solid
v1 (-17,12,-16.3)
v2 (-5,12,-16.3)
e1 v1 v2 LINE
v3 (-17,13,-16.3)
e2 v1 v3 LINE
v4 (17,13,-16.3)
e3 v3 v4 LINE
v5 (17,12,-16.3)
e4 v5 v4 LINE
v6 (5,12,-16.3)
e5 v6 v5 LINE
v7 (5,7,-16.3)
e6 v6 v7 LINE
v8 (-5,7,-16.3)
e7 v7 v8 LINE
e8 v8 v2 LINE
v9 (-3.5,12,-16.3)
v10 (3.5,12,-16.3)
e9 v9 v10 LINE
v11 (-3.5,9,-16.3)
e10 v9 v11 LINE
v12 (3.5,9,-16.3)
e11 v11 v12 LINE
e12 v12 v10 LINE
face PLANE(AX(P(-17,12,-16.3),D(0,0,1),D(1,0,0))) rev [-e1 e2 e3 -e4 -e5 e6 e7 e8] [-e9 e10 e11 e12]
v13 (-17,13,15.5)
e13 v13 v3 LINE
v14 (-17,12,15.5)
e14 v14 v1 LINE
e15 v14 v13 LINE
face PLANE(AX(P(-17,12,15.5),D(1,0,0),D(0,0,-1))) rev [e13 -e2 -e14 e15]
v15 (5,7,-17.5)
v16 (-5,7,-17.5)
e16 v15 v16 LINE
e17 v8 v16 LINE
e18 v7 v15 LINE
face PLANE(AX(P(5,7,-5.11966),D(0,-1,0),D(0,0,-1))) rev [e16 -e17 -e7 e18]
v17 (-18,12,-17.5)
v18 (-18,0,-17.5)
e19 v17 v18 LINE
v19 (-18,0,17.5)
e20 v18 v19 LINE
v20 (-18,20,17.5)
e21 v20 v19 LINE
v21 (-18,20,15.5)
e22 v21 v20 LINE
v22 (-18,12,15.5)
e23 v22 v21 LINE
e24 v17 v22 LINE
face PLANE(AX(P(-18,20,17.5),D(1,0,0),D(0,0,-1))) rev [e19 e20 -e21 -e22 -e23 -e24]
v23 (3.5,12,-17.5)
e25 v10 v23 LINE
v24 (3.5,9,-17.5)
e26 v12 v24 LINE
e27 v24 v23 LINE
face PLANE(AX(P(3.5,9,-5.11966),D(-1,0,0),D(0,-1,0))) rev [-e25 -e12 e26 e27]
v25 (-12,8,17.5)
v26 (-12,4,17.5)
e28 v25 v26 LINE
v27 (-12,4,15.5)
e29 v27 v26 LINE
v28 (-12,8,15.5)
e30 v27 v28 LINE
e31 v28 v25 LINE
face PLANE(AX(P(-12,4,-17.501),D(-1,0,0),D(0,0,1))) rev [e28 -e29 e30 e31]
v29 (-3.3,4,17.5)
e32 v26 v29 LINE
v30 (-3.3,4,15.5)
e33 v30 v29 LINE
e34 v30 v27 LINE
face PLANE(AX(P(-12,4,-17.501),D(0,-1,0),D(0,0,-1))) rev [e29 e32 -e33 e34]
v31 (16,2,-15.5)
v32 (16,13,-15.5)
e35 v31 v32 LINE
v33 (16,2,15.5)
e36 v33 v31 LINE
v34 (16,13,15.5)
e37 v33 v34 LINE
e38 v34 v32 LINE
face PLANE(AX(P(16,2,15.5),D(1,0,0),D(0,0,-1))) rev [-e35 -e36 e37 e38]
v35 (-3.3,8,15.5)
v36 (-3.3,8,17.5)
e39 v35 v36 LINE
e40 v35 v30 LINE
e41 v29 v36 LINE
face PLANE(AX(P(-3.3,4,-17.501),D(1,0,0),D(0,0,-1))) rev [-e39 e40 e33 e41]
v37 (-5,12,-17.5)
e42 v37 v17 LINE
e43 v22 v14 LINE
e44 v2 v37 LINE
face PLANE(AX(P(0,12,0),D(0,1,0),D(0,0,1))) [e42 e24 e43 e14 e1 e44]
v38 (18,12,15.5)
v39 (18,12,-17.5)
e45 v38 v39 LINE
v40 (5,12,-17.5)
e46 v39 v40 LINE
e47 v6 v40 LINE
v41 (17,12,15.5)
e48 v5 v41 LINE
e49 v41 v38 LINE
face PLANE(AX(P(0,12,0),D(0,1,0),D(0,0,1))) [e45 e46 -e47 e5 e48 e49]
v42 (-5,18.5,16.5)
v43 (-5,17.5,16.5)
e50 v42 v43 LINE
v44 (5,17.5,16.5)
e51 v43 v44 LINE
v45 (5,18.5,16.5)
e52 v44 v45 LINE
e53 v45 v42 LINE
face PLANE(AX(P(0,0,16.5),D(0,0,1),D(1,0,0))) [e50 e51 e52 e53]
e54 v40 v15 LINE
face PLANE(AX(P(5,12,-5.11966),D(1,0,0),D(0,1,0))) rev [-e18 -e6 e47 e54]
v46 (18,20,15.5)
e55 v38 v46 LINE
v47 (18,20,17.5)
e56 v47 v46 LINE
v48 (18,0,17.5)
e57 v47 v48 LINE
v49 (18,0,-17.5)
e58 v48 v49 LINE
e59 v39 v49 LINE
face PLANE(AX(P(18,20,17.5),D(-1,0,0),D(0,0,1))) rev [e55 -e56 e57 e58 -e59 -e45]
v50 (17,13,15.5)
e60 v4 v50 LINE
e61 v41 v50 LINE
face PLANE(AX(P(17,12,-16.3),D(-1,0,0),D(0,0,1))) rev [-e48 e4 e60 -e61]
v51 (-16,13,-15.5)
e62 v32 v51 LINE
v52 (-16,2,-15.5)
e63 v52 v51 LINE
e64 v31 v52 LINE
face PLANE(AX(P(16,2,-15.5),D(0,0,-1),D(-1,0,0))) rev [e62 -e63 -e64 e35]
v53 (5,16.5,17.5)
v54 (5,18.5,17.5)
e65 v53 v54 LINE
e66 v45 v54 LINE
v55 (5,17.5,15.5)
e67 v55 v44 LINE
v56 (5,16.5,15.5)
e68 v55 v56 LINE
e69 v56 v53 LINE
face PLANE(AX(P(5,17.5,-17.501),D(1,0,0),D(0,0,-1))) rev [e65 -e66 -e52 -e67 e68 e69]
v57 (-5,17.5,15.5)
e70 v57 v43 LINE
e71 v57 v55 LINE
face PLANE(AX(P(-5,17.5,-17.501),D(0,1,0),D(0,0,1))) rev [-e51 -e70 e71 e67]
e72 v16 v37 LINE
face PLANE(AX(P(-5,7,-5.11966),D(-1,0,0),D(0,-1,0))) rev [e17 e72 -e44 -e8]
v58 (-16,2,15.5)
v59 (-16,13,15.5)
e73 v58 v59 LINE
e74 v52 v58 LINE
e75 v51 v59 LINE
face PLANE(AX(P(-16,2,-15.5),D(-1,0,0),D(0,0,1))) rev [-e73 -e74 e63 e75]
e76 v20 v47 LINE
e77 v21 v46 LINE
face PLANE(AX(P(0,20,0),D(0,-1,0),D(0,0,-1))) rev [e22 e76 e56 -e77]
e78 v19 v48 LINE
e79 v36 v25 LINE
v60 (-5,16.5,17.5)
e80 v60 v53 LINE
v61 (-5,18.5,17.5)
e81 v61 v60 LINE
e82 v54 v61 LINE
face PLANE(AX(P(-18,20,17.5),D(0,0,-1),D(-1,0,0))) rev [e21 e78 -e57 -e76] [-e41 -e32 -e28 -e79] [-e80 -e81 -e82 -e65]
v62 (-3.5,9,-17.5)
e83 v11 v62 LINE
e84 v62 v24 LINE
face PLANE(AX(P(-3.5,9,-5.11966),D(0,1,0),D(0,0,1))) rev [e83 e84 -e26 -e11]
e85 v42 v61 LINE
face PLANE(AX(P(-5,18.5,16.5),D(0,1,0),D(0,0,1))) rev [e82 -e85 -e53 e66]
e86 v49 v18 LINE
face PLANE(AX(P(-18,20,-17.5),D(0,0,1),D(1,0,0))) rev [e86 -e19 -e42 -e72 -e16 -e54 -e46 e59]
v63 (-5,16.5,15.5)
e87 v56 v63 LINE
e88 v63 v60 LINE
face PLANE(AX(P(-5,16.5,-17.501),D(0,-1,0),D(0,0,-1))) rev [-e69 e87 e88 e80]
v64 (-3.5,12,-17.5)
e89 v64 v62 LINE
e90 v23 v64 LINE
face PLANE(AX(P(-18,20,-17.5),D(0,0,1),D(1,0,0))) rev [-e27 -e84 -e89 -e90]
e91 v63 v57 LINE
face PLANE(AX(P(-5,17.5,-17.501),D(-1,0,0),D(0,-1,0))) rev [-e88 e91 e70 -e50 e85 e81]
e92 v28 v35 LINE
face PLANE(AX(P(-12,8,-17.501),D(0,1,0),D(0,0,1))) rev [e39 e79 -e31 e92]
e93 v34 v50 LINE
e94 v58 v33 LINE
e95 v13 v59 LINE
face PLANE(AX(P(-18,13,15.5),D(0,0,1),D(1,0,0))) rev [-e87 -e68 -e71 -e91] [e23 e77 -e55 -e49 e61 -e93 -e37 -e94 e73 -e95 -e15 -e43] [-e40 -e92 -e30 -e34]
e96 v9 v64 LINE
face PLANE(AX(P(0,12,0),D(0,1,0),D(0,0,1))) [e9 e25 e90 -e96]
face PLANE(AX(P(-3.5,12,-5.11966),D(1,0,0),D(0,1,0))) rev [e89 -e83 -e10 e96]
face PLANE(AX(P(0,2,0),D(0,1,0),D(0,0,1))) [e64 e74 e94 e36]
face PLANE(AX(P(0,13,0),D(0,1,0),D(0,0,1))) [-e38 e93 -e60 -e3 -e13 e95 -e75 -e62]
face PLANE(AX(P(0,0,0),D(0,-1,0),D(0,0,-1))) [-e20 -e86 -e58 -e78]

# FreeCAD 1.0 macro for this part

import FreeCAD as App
import Part
import Sketcher
from FreeCAD import Vector

doc = App.newDocument("Part")
body = doc.addObject("PartDesign::Body", "Body")

# Sketch on XZ plane
sketch1 = body.newObject("Sketcher::SketchObject", "Sketch")
sketch1.AttachmentSupport = (doc.getObject("XZ_Plane"), [""])
sketch1.MapMode = "FlatFace"
sketch1.addGeometry([
    Part.LineSegment(Vector(-18, -18, 0), Vector(-18, 18, 0)),
    Part.LineSegment(Vector(-18, 18, 0), Vector(18, 18, 0)),
    Part.LineSegment(Vector(18, 18, 0), Vector(18, -18, 0)),
    Part.LineSegment(Vector(18, -18, 0), Vector(-18, -18, 0)),
], False)
sketch1.addConstraint([
    Sketcher.Constraint("Coincident", 0, 2, 1, 1),
    Sketcher.Constraint("Coincident", 1, 2, 2, 1),
    Sketcher.Constraint("Coincident", 2, 2, 3, 1),
    Sketcher.Constraint("Coincident", 3, 2, 0, 1),
    Sketcher.Constraint("Vertical", 0),
    Sketcher.Constraint("Horizontal", 1),
    Sketcher.Constraint("Vertical", 2),
    Sketcher.Constraint("Horizontal", 3),
    Sketcher.Constraint("Symmetric", 0, 2, 2, 2, -1, 1),
    Sketcher.Constraint("DistanceX", 1, 1, 1, 2, 36.0),
    Sketcher.Constraint("DistanceY", 0, 1, 0, 2, 35.0),
])
pad1 = body.newObject("PartDesign::Pad", "Pad")
pad1.Profile = sketch1
pad1.Length = 20
pad1.Reversed = True

# Sketch on XZ plane
sketch2 = body.newObject("Sketcher::SketchObject", "Sketch001")
sketch2.AttachmentSupport = (doc.getObject("XZ_Plane"), [""])
sketch2.MapMode = "FlatFace"
sketch2.AttachmentOffset = App.Placement(Vector(0, 0, -20), App.Rotation())
sketch2.addGeometry([
    Part.LineSegment(Vector(-18, -18, 0), Vector(-18, 16, 0)),
    Part.LineSegment(Vector(-18, 16, 0), Vector(18, 16, 0)),
    Part.LineSegment(Vector(18, 16, 0), Vector(18, -18, 0)),
    Part.LineSegment(Vector(18, -18, 0), Vector(-18, -18, 0)),
], False)
sketch2.addConstraint([
    Sketcher.Constraint("Coincident", 0, 2, 1, 1),
    Sketcher.Constraint("Coincident", 1, 2, 2, 1),
    Sketcher.Constraint("Coincident", 2, 2, 3, 1),
    Sketcher.Constraint("Coincident", 3, 2, 0, 1),
    Sketcher.Constraint("Vertical", 0),
    Sketcher.Constraint("Horizontal", 1),
    Sketcher.Constraint("Vertical", 2),
    Sketcher.Constraint("Horizontal", 3),
    Sketcher.Constraint("DistanceX", 1, 1, 1, 2, 36.0),
    Sketcher.Constraint("DistanceY", 0, 1, 0, 2, 33.0),
    Sketcher.Constraint("DistanceX", 0, 2, -1, 1, 18.0),
    Sketcher.Constraint("DistanceY", -1, 1, 0, 2, 15.5),
])
pocket1 = body.newObject("PartDesign::Pocket", "Pocket")
pocket1.Profile = sketch2
pocket1.Length = 7
pocket1.Reversed = True

# Sketch on XZ plane
sketch3 = body.newObject("Sketcher::SketchObject", "Sketch002")
sketch3.AttachmentSupport = (doc.getObject("XZ_Plane"), [""])
sketch3.MapMode = "FlatFace"
sketch3.AttachmentOffset = App.Placement(Vector(0, 0, -13), App.Rotation())
sketch3.addGeometry([
    Part.LineSegment(Vector(-16, -16, 0), Vector(-16, 16, 0)),
    Part.LineSegment(Vector(-16, 16, 0), Vector(16, 16, 0)),
    Part.LineSegment(Vector(16, 16, 0), Vector(16, -16, 0)),
    Part.LineSegment(Vector(16, -16, 0), Vector(-16, -16, 0)),
], False)
sketch3.addConstraint([
    Sketcher.Constraint("Coincident", 0, 2, 1, 1),
    Sketcher.Constraint("Coincident", 1, 2, 2, 1),
    Sketcher.Constraint("Coincident", 2, 2, 3, 1),
    Sketcher.Constraint("Coincident", 3, 2, 0, 1),
    Sketcher.Constraint("Vertical", 0),
    Sketcher.Constraint("Horizontal", 1),
    Sketcher.Constraint("Vertical", 2),
    Sketcher.Constraint("Horizontal", 3),
    Sketcher.Constraint("Symmetric", 0, 2, 2, 2, -1, 1),
    Sketcher.Constraint("DistanceX", 1, 1, 1, 2, 32.0),
    Sketcher.Constraint("DistanceY", 0, 1, 0, 2, 31.0),
])
pocket2 = body.newObject("PartDesign::Pocket", "Pocket001")
pocket2.Profile = sketch3
pocket2.Length = 11
pocket2.Reversed = True

# Sketch on XY plane
sketch4 = body.newObject("Sketcher::SketchObject", "Sketch003")
sketch4.AttachmentSupport = (doc.getObject("XY_Plane"), [""])
sketch4.MapMode = "FlatFace"
sketch4.AttachmentOffset = App.Placement(Vector(0, 0, 17.5), App.Rotation())
sketch4.addGeometry([
    Part.LineSegment(Vector(-12, 8, 0), Vector(-12, 4, 0)),
    Part.LineSegment(Vector(-12, 4, 0), Vector(-3.3, 4, 0)),
    Part.LineSegment(Vector(-3.3, 4, 0), Vector(-3.3, 8, 0)),
    Part.LineSegment(Vector(-3.3, 8, 0), Vector(-12, 8, 0)),
], False)
sketch4.addConstraint([
    Sketcher.Constraint("Coincident", 0, 2, 1, 1),
    Sketcher.Constraint("Coincident", 1, 2, 2, 1),
    Sketcher.Constraint("Coincident", 2, 2, 3, 1),
    Sketcher.Constraint("Coincident", 3, 2, 0, 1),
    Sketcher.Constraint("Vertical", 0),
    Sketcher.Constraint("Horizontal", 1),
    Sketcher.Constraint("Vertical", 2),
    Sketcher.Constraint("Horizontal", 3),
    Sketcher.Constraint("DistanceY", 0, 2, 0, 1, 4.0),
    Sketcher.Constraint("DistanceX", 1, 1, 1, 2, 8.7),
    Sketcher.Constraint("DistanceX", 0, 2, -1, 1, 12.0),
    Sketcher.Constraint("DistanceY", -1, 1, 0, 2, 4.0),
])
pocket3 = body.newObject("PartDesign::Pocket", "Pocket002")
pocket3.Profile = sketch4
pocket3.Type = "UpToFirst"

# Sketch on XY plane
sketch5 = body.newObject("Sketcher::SketchObject", "Sketch004")
sketch5.AttachmentSupport = (doc.getObject("XY_Plane"), [""])
sketch5.MapMode = "FlatFace"
sketch5.AttachmentOffset = App.Placement(Vector(0, 0, 17.5), App.Rotation())
sketch5.addGeometry([
    Part.LineSegment(Vector(-5, 17.5, 0), Vector(-5, 16.5, 0)),
    Part.LineSegment(Vector(-5, 16.5, 0), Vector(5, 16.5, 0)),
    Part.LineSegment(Vector(5, 16.5, 0), Vector(5, 17.5, 0)),
    Part.LineSegment(Vector(5, 17.5, 0), Vector(-5, 17.5, 0)),
], False)
sketch5.addConstraint([
    Sketcher.Constraint("Coincident", 0, 2, 1, 1),
    Sketcher.Constraint("Coincident", 1, 2, 2, 1),
    Sketcher.Constraint("Coincident", 2, 2, 3, 1),
    Sketcher.Constraint("Coincident", 3, 2, 0, 1),
    Sketcher.Constraint("Vertical", 0),
    Sketcher.Constraint("Horizontal", 1),
    Sketcher.Constraint("Vertical", 2),
    Sketcher.Constraint("Horizontal", 3),
    Sketcher.Constraint("DistanceX", 1, 1, 1, 2, 10.0),
    Sketcher.Constraint("DistanceY", 0, 2, 0, 1, 1.0),
    Sketcher.Constraint("DistanceX", 0, 2, -1, 1, 5.0),
    Sketcher.Constraint("DistanceY", -1, 1, 0, 2, 16.5),
])
pocket4 = body.newObject("PartDesign::Pocket", "Pocket003")
pocket4.Profile = sketch5
pocket4.Type = "UpToFirst"

# Sketch on XY plane
sketch6 = body.newObject("Sketcher::SketchObject", "Sketch005")
sketch6.AttachmentSupport = (doc.getObject("XY_Plane"), [""])
sketch6.MapMode = "FlatFace"
sketch6.AttachmentOffset = App.Placement(Vector(0, 0, 17.5), App.Rotation())
sketch6.addGeometry([
    Part.LineSegment(Vector(-5, 18.5, 0), Vector(-5, 17.5, 0)),
    Part.LineSegment(Vector(-5, 17.5, 0), Vector(5, 17.5, 0)),
    Part.LineSegment(Vector(5, 17.5, 0), Vector(5, 18.5, 0)),
    Part.LineSegment(Vector(5, 18.5, 0), Vector(-5, 18.5, 0)),
], False)
sketch6.addConstraint([
    Sketcher.Constraint("Coincident", 0, 2, 1, 1),
    Sketcher.Constraint("Coincident", 1, 2, 2, 1),
    Sketcher.Constraint("Coincident", 2, 2, 3, 1),
    Sketcher.Constraint("Coincident", 3, 2, 0, 1),
    Sketcher.Constraint("Vertical", 0),
    Sketcher.Constraint("Horizontal", 1),
    Sketcher.Constraint("Vertical", 2),
    Sketcher.Constraint("Horizontal", 3),
    Sketcher.Constraint("DistanceX", 1, 1, 1, 2, 10.0),
    Sketcher.Constraint("DistanceY", 0, 2, 0, 1, 1.0),
    Sketcher.Constraint("DistanceX", 0, 2, -1, 1, 5.0),
    Sketcher.Constraint("DistanceY", -1, 1, 0, 2, 17.5),
])
pocket5 = body.newObject("PartDesign::Pocket", "Pocket004")
pocket5.Profile = sketch6
pocket5.Length = 1

# Sketch on XZ plane
sketch7 = body.newObject("Sketcher::SketchObject", "Sketch006")
sketch7.AttachmentSupport = (doc.getObject("XZ_Plane"), [""])
sketch7.MapMode = "FlatFace"
sketch7.AttachmentOffset = App.Placement(Vector(0, 0, -13), App.Rotation())
sketch7.addGeometry([
    Part.LineSegment(Vector(-18, 15.5, 0), Vector(-17, 15.5, 0)),  # 0
    Part.LineSegment(Vector(-17, 15.5, 0), Vector(-17, -16.3, 0)),  # 1
    Part.LineSegment(Vector(-17, -16.3, 0), Vector(17, -16.3, 0)),  # 2
    Part.LineSegment(Vector(17, -16.3, 0), Vector(17, 15.5, 0)),  # 3
    Part.LineSegment(Vector(17, 15.5, 0), Vector(18, 15.5, 0)),  # 4
    Part.LineSegment(Vector(18, 15.5, 0), Vector(18, -17.5, 0)),  # 5
    Part.LineSegment(Vector(18, -17.5, 0), Vector(-18, -17.5, 0)),  # 6
    Part.LineSegment(Vector(-18, -17.5, 0), Vector(-18, 15.5, 0)),  # 7
], False)
sketch7.addConstraint([
    Sketcher.Constraint("Coincident", 0, 2, 1, 1),
    Sketcher.Constraint("Coincident", 1, 2, 2, 1),
    Sketcher.Constraint("Coincident", 2, 2, 3, 1),
    Sketcher.Constraint("Coincident", 3, 2, 4, 1),
    Sketcher.Constraint("Coincident", 4, 2, 5, 1),
    Sketcher.Constraint("Coincident", 5, 2, 6, 1),
    Sketcher.Constraint("Coincident", 6, 2, 7, 1),
    Sketcher.Constraint("Coincident", 7, 2, 0, 1),
    Sketcher.Constraint("Horizontal", 0),
    Sketcher.Constraint("Vertical", 1),
    Sketcher.Constraint("Horizontal", 2),
    Sketcher.Constraint("Vertical", 3),
    Sketcher.Constraint("Horizontal", 4),
    Sketcher.Constraint("Vertical", 5),
    Sketcher.Constraint("Horizontal", 6),
    Sketcher.Constraint("Vertical", 7),
    Sketcher.Constraint("Symmetric", 0, 2, 3, 2, -2),
    Sketcher.Constraint("Equal", 0, 4),
    Sketcher.Constraint("DistanceX", 0, 1, 0, 2, 1.0),
    Sketcher.Constraint("DistanceX", 2, 1, 2, 2, 34.0),
    Sketcher.Constraint("DistanceY", 5, 2, 5, 1, 33.0),
    Sketcher.Constraint("DistanceY", 1, 2, 1, 1, 31.8),
    Sketcher.Constraint("DistanceY", -1, 1, 0, 2, 15.5),
])
pocket6 = body.newObject("PartDesign::Pocket", "Pocket005")
pocket6.Profile = sketch7
pocket6.Length = 1
pocket6.Reversed = True

# Sketch on XY plane
sketch8 = body.newObject("Sketcher::SketchObject", "Sketch007")
sketch8.AttachmentSupport = (doc.getObject("XY_Plane"), [""])
sketch8.MapMode = "FlatFace"
sketch8.AttachmentOffset = App.Placement(Vector(0, 0, -17.5), App.Rotation())
sketch8.addGeometry([
    Part.LineSegment(Vector(5, 12, 0), Vector(5, 7, 0)),  # 0
    Part.LineSegment(Vector(5, 7, 0), Vector(-5, 7, 0)),  # 1
    Part.LineSegment(Vector(-5, 7, 0), Vector(-5, 12, 0)),  # 2
    Part.LineSegment(Vector(-5, 12, 0), Vector(-3.5, 12, 0)),  # 3
    Part.LineSegment(Vector(-3.5, 12, 0), Vector(-3.5, 9, 0)),  # 4
    Part.LineSegment(Vector(-3.5, 9, 0), Vector(3.5, 9, 0)),  # 5
    Part.LineSegment(Vector(3.5, 9, 0), Vector(3.5, 12, 0)),  # 6
    Part.LineSegment(Vector(3.5, 12, 0), Vector(5, 12, 0)),  # 7
], False)
sketch8.addConstraint([
    Sketcher.Constraint("Coincident", 0, 2, 1, 1),
    Sketcher.Constraint("Coincident", 1, 2, 2, 1),
    Sketcher.Constraint("Coincident", 2, 2, 3, 1),
    Sketcher.Constraint("Coincident", 3, 2, 4, 1),
    Sketcher.Constraint("Coincident", 4, 2, 5, 1),
    Sketcher.Constraint("Coincident", 5, 2, 6, 1),
    Sketcher.Constraint("Coincident", 6, 2, 7, 1),
    Sketcher.Constraint("Coincident", 7, 2, 0, 1),
    Sketcher.Constraint("Vertical", 0),
    Sketcher.Constraint("Horizontal", 1),
    Sketcher.Constraint("Vertical", 2),
    Sketcher.Constraint("Horizontal", 3),
    Sketcher.Constraint("Vertical", 4),
    Sketcher.Constraint("Horizontal", 5),
    Sketcher.Constraint("Vertical", 6),
    Sketcher.Constraint("Horizontal", 7),
    Sketcher.Constraint("Symmetric", 3, 2, 6, 2, -2),
    Sketcher.Constraint("Equal", 3, 7),
    Sketcher.Constraint("DistanceX", 1, 2, 1, 1, 10.0),
    Sketcher.Constraint("DistanceX", 5, 1, 5, 2, 7.0),
    Sketcher.Constraint("DistanceY", 0, 2, 0, 1, 5.0),
    Sketcher.Constraint("DistanceY", 4, 2, 4, 1, 3.0),
    Sketcher.Constraint("DistanceY", -1, 1, 0, 2, 7.0),
])
pocket7 = body.newObject("PartDesign::Pocket", "Pocket006")
pocket7.Profile = sketch8
pocket7.Length = 1.2
pocket7.Reversed = True

doc.recompute()
